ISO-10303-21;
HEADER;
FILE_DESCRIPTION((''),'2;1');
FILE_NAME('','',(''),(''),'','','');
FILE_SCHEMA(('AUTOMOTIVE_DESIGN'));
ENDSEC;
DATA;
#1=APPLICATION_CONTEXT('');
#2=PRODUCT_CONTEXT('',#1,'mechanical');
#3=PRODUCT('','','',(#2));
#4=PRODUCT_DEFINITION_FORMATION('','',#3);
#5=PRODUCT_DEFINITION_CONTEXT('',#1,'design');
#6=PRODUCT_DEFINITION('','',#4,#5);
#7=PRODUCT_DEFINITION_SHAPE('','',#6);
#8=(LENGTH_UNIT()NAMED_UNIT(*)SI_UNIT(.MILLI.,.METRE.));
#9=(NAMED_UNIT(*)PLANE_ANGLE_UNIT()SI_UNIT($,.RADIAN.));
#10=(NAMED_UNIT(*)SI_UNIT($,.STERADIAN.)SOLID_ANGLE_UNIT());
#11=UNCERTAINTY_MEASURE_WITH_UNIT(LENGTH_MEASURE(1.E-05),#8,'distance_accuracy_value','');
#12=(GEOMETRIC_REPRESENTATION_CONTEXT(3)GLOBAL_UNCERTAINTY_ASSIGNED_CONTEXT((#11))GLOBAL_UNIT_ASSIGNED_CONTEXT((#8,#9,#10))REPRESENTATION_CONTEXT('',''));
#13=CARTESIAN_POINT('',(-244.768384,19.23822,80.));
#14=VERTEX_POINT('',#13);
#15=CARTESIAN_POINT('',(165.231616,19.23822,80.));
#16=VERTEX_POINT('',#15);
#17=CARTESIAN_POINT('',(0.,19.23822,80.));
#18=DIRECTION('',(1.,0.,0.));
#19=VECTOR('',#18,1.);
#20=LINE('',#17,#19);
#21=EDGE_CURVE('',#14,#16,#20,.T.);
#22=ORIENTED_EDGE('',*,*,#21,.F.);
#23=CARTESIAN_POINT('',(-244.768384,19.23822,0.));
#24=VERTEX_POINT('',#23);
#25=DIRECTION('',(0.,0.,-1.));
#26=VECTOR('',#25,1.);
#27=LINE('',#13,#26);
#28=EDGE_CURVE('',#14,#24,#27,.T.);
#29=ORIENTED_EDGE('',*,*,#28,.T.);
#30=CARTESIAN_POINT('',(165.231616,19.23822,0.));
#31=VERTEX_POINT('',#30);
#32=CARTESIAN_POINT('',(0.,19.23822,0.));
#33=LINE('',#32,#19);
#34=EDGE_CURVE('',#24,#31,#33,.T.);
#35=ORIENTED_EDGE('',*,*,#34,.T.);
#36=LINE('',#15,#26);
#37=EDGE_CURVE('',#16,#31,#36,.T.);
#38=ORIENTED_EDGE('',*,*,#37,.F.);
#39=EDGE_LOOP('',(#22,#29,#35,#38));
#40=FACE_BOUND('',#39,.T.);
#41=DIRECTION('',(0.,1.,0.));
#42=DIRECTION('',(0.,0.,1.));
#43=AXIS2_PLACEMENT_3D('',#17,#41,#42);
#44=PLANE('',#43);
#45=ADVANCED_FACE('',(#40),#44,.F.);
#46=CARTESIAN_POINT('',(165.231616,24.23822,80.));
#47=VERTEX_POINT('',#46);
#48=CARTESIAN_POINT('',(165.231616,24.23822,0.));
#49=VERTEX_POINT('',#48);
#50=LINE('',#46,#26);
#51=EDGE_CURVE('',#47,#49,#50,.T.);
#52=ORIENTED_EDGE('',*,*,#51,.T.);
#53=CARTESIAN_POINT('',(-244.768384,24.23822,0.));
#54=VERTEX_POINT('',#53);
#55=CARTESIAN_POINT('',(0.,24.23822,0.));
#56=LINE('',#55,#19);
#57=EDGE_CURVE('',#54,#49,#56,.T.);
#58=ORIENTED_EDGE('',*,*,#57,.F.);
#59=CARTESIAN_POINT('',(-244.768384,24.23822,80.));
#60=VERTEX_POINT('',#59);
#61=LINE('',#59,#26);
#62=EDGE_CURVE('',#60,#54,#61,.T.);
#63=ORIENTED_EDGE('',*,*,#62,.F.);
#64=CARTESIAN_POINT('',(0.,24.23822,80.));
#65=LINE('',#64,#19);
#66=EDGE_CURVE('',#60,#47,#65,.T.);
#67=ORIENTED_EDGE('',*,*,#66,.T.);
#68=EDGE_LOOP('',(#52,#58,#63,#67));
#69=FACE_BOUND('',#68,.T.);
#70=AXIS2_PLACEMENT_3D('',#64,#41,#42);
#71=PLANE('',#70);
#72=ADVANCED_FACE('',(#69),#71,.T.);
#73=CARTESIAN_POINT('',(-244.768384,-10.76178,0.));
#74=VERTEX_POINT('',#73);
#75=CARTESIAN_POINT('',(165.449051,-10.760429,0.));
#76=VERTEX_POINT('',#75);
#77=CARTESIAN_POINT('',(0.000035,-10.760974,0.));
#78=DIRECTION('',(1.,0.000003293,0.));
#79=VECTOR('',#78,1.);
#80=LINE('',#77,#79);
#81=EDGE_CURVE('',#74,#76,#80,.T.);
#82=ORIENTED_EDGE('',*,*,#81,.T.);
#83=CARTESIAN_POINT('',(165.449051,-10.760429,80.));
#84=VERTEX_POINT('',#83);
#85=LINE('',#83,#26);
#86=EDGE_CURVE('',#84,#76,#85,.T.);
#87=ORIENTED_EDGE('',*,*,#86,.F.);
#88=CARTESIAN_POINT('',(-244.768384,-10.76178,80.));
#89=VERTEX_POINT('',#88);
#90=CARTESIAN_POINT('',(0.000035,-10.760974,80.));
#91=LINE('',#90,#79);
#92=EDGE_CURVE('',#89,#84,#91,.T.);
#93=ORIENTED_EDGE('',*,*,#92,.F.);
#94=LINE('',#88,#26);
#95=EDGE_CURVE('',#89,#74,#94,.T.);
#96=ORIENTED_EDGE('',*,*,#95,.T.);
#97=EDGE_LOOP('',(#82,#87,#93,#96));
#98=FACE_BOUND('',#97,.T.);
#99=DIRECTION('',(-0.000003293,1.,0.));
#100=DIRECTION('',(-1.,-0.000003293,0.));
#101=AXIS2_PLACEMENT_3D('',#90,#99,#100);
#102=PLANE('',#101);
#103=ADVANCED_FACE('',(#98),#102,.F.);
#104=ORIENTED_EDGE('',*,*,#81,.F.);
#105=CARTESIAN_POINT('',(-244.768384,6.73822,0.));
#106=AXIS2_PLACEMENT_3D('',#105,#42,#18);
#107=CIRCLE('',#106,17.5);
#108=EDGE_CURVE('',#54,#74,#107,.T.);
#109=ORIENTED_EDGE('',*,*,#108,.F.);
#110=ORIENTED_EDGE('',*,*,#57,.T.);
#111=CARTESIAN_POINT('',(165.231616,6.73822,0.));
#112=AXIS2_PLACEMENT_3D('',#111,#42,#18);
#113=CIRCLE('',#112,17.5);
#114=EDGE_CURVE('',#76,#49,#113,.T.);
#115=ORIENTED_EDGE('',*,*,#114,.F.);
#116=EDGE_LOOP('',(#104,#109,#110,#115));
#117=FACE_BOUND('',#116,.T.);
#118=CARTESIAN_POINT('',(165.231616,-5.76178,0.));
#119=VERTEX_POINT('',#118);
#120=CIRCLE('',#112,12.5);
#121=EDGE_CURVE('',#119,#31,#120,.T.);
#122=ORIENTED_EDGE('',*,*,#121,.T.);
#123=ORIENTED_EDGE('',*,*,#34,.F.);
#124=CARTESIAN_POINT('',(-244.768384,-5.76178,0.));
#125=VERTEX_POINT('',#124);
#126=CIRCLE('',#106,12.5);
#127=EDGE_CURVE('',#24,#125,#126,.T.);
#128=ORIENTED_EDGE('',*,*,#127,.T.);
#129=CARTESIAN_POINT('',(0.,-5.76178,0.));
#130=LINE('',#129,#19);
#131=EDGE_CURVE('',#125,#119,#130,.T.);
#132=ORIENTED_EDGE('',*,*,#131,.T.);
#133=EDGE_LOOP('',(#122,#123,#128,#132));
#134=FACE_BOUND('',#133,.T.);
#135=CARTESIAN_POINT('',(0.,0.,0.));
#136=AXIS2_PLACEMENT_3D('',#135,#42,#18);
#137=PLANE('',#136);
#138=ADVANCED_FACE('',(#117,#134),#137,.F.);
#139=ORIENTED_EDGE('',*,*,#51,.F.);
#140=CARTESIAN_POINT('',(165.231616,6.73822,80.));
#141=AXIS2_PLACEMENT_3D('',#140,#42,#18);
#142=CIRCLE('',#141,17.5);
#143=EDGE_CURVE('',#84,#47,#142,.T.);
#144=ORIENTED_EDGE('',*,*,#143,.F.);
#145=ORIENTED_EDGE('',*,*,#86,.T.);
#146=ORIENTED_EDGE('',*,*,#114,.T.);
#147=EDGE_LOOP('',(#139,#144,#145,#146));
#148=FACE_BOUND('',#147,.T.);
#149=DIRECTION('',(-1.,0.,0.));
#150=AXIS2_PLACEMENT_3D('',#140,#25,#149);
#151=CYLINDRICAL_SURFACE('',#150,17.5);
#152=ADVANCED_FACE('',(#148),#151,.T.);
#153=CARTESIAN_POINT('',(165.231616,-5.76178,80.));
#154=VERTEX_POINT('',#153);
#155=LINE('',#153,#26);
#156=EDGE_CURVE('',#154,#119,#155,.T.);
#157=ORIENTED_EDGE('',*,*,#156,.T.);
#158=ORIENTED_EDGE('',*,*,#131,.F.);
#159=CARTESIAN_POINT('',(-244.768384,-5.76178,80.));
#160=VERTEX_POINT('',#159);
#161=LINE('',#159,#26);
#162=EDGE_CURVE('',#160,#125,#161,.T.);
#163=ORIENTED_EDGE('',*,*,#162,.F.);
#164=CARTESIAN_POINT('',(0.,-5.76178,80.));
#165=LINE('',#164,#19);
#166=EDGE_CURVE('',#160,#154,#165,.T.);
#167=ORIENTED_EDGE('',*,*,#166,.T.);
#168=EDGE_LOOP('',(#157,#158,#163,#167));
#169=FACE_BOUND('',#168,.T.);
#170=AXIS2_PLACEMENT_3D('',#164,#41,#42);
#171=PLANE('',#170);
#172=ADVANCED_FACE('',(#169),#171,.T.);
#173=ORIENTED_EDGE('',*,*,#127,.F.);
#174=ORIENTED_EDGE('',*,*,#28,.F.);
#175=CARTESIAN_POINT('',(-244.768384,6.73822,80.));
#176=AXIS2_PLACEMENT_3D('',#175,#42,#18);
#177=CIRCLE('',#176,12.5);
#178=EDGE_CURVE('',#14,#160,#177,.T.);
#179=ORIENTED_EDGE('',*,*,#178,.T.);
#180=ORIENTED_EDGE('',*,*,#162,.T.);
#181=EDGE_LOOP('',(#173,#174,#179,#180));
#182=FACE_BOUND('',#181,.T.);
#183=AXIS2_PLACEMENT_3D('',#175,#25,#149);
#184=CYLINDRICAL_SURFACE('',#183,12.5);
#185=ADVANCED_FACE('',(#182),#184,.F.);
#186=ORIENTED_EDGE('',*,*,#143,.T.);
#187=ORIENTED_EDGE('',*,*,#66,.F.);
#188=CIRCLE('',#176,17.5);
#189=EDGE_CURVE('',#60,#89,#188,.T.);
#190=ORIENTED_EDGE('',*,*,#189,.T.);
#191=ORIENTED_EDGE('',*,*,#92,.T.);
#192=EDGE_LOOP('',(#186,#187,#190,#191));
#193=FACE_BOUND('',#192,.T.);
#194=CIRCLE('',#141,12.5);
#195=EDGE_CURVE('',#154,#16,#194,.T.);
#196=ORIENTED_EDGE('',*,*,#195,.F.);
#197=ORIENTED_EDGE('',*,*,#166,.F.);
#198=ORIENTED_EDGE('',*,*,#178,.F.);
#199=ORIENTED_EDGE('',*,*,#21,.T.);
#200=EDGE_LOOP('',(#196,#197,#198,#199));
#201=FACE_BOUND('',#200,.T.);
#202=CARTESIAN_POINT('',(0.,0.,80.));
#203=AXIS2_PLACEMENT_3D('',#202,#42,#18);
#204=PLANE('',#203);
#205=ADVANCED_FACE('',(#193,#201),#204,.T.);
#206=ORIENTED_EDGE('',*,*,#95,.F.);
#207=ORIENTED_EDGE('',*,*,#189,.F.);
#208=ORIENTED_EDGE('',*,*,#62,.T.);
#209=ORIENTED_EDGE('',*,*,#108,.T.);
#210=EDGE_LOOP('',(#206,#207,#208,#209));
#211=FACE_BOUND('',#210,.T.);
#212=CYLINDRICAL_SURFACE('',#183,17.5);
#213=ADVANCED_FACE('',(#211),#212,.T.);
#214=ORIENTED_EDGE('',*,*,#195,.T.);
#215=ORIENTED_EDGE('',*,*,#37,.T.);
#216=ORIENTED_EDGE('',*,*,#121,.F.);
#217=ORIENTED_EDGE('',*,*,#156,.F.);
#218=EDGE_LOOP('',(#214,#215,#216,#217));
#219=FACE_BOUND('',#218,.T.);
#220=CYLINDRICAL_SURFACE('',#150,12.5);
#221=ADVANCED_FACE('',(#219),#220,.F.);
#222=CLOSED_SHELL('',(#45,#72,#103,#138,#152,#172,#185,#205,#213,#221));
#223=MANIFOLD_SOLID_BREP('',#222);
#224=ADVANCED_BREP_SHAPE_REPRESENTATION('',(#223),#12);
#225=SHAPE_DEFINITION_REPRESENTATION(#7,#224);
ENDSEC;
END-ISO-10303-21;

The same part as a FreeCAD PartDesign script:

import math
import FreeCAD as App
import Part
import Sketcher

V = App.Vector

doc = App.newDocument("Part")
params = doc.addObject("Spreadsheet::Sheet", "Params")
for row, (alias, value) in enumerate([
    ("sketch1_radius", "17.5 mm"),
    ("sketch1_radius2", "12.5 mm"),
    ("sketch1_width", "410 mm"),
    ("pad1_length", "80 mm"),
], start=1):
    params.set(f"A{row}", alias)
    params.set(f"B{row}", "=" + value)
    params.setAlias(f"B{row}", alias)

body = doc.addObject("PartDesign::Body", "Body")

sketch1 = body.newObject("Sketcher::SketchObject", "Sketch")
sketch1.AttachmentSupport = (doc.getObject("XY_Plane"), [""])
sketch1.MapMode = "FlatFace"
sketch1.addGeometry([
    Part.LineSegment(V(-245, -11, 0), V(165, -11, 0)),
    Part.ArcOfCircle(Part.Circle(V(165, 7, 0), V(0, 0, 1), 18), math.radians(-89), math.radians(90)),
    Part.LineSegment(V(165, 24, 0), V(-245, 24, 0)),
    Part.ArcOfCircle(Part.Circle(V(-245, 7, 0), V(0, 0, 1), 18), math.radians(90), math.radians(270)),
    Part.ArcOfCircle(Part.Circle(V(165, 7, 0), V(0, 0, 1), 12), math.radians(-90), math.radians(90)),
    Part.LineSegment(V(165, -6, 0), V(-245, -6, 0)),
    Part.ArcOfCircle(Part.Circle(V(-245, 7, 0), V(0, 0, 1), 12), math.radians(90), math.radians(270)),
    Part.LineSegment(V(-245, 19, 0), V(165, 19, 0)),
], False)
sketch1.addConstraint([
    Sketcher.Constraint("Coincident", 0, 2, 1, 1),
    Sketcher.Constraint("Tangent", 1, 2, 2, 1),
    Sketcher.Constraint("Tangent", 2, 2, 3, 1),
    Sketcher.Constraint("Coincident", 3, 2, 0, 1),
    Sketcher.Constraint("Tangent", 4, 1, 5, 1),
    Sketcher.Constraint("Tangent", 5, 2, 6, 2),
    Sketcher.Constraint("Tangent", 6, 1, 7, 1),
    Sketcher.Constraint("Tangent", 7, 2, 4, 2),
    Sketcher.Constraint("Horizontal", 2),
    Sketcher.Constraint("Horizontal", 5),
    Sketcher.Constraint("Horizontal", 7),
    Sketcher.Constraint("Coincident", 4, 3, 1, 3),
    Sketcher.Constraint("Coincident", 6, 3, 3, 3),
    Sketcher.Constraint("Vertical", 2, 2, 3, 2),
    Sketcher.Constraint("Radius", 1, 17.5),
    Sketcher.Constraint("Radius", 4, 12.5),
    Sketcher.Constraint("DistanceX", 2, 2, 2, 1, 410.0),
    Sketcher.Constraint("DistanceY", -1, 1, 1, 3, 6.73822),
    Sketcher.Constraint("DistanceX", -1, 1, 0, 2, 165.449051),
    Sketcher.Constraint("DistanceY", 0, 2, -1, 1, 10.760429),
])
sketch1.setExpression("Constraints[14]", "Params.sketch1_radius")
sketch1.setExpression("Constraints[15]", "Params.sketch1_radius2")
sketch1.setExpression("Constraints[16]", "Params.sketch1_width")
pad1 = body.newObject("PartDesign::Pad", "Pad")
pad1.Profile = sketch1
pad1.setExpression("Length", "Params.pad1_length")

doc.recompute()
